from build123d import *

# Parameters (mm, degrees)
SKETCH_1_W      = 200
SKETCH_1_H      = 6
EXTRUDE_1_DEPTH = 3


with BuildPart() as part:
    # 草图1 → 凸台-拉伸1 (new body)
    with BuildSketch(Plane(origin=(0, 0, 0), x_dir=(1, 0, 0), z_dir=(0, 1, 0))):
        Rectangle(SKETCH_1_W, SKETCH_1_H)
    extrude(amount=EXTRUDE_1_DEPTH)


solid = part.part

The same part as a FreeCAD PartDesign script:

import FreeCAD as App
import Part
import Sketcher
from FreeCAD import Vector


def add_polygon(sketch, points):
    """Adds a closed chain of lines whose ends are joined by coincident constraints."""
    first, n = sketch.GeometryCount, len(points)
    for a, b in zip(points, points[1:] + points[:1]):
        sketch.addGeometry(Part.LineSegment(App.Vector(*a, 0), App.Vector(*b, 0)), False)
    for i in range(n):
        sketch.addConstraint(Sketcher.Constraint("Coincident", first + i, 2, first + (i + 1) % n, 1))

doc = App.newDocument("Part")
body = doc.addObject("PartDesign::Body", "Body")

# Sketch on XZ plane
sketch1 = body.newObject("Sketcher::SketchObject", "Sketch")
sketch1.AttachmentSupport = (doc.getObject("XZ_Plane"), [""])
sketch1.MapMode = "FlatFace"
add_polygon(sketch1, [(-100, -3), (-100, 3), (100, 3), (100, -3)])  # lines 0-3
sketch1.addConstraint([
    Sketcher.Constraint("Vertical", 0),
    Sketcher.Constraint("Horizontal", 1),
    Sketcher.Constraint("Vertical", 2),
    Sketcher.Constraint("Horizontal", 3),
    Sketcher.Constraint("Symmetric", 0, 2, 2, 2, -1, 1),
    Sketcher.Constraint("DistanceX", 1, 1, 1, 2, 200.0),
    Sketcher.Constraint("DistanceY", 0, 1, 0, 2, 6.0),
])
pad1 = body.newObject("PartDesign::Pad", "Pad")
pad1.Profile = sketch1
pad1.Length = 3
pad1.Reversed = True

doc.recompute()
